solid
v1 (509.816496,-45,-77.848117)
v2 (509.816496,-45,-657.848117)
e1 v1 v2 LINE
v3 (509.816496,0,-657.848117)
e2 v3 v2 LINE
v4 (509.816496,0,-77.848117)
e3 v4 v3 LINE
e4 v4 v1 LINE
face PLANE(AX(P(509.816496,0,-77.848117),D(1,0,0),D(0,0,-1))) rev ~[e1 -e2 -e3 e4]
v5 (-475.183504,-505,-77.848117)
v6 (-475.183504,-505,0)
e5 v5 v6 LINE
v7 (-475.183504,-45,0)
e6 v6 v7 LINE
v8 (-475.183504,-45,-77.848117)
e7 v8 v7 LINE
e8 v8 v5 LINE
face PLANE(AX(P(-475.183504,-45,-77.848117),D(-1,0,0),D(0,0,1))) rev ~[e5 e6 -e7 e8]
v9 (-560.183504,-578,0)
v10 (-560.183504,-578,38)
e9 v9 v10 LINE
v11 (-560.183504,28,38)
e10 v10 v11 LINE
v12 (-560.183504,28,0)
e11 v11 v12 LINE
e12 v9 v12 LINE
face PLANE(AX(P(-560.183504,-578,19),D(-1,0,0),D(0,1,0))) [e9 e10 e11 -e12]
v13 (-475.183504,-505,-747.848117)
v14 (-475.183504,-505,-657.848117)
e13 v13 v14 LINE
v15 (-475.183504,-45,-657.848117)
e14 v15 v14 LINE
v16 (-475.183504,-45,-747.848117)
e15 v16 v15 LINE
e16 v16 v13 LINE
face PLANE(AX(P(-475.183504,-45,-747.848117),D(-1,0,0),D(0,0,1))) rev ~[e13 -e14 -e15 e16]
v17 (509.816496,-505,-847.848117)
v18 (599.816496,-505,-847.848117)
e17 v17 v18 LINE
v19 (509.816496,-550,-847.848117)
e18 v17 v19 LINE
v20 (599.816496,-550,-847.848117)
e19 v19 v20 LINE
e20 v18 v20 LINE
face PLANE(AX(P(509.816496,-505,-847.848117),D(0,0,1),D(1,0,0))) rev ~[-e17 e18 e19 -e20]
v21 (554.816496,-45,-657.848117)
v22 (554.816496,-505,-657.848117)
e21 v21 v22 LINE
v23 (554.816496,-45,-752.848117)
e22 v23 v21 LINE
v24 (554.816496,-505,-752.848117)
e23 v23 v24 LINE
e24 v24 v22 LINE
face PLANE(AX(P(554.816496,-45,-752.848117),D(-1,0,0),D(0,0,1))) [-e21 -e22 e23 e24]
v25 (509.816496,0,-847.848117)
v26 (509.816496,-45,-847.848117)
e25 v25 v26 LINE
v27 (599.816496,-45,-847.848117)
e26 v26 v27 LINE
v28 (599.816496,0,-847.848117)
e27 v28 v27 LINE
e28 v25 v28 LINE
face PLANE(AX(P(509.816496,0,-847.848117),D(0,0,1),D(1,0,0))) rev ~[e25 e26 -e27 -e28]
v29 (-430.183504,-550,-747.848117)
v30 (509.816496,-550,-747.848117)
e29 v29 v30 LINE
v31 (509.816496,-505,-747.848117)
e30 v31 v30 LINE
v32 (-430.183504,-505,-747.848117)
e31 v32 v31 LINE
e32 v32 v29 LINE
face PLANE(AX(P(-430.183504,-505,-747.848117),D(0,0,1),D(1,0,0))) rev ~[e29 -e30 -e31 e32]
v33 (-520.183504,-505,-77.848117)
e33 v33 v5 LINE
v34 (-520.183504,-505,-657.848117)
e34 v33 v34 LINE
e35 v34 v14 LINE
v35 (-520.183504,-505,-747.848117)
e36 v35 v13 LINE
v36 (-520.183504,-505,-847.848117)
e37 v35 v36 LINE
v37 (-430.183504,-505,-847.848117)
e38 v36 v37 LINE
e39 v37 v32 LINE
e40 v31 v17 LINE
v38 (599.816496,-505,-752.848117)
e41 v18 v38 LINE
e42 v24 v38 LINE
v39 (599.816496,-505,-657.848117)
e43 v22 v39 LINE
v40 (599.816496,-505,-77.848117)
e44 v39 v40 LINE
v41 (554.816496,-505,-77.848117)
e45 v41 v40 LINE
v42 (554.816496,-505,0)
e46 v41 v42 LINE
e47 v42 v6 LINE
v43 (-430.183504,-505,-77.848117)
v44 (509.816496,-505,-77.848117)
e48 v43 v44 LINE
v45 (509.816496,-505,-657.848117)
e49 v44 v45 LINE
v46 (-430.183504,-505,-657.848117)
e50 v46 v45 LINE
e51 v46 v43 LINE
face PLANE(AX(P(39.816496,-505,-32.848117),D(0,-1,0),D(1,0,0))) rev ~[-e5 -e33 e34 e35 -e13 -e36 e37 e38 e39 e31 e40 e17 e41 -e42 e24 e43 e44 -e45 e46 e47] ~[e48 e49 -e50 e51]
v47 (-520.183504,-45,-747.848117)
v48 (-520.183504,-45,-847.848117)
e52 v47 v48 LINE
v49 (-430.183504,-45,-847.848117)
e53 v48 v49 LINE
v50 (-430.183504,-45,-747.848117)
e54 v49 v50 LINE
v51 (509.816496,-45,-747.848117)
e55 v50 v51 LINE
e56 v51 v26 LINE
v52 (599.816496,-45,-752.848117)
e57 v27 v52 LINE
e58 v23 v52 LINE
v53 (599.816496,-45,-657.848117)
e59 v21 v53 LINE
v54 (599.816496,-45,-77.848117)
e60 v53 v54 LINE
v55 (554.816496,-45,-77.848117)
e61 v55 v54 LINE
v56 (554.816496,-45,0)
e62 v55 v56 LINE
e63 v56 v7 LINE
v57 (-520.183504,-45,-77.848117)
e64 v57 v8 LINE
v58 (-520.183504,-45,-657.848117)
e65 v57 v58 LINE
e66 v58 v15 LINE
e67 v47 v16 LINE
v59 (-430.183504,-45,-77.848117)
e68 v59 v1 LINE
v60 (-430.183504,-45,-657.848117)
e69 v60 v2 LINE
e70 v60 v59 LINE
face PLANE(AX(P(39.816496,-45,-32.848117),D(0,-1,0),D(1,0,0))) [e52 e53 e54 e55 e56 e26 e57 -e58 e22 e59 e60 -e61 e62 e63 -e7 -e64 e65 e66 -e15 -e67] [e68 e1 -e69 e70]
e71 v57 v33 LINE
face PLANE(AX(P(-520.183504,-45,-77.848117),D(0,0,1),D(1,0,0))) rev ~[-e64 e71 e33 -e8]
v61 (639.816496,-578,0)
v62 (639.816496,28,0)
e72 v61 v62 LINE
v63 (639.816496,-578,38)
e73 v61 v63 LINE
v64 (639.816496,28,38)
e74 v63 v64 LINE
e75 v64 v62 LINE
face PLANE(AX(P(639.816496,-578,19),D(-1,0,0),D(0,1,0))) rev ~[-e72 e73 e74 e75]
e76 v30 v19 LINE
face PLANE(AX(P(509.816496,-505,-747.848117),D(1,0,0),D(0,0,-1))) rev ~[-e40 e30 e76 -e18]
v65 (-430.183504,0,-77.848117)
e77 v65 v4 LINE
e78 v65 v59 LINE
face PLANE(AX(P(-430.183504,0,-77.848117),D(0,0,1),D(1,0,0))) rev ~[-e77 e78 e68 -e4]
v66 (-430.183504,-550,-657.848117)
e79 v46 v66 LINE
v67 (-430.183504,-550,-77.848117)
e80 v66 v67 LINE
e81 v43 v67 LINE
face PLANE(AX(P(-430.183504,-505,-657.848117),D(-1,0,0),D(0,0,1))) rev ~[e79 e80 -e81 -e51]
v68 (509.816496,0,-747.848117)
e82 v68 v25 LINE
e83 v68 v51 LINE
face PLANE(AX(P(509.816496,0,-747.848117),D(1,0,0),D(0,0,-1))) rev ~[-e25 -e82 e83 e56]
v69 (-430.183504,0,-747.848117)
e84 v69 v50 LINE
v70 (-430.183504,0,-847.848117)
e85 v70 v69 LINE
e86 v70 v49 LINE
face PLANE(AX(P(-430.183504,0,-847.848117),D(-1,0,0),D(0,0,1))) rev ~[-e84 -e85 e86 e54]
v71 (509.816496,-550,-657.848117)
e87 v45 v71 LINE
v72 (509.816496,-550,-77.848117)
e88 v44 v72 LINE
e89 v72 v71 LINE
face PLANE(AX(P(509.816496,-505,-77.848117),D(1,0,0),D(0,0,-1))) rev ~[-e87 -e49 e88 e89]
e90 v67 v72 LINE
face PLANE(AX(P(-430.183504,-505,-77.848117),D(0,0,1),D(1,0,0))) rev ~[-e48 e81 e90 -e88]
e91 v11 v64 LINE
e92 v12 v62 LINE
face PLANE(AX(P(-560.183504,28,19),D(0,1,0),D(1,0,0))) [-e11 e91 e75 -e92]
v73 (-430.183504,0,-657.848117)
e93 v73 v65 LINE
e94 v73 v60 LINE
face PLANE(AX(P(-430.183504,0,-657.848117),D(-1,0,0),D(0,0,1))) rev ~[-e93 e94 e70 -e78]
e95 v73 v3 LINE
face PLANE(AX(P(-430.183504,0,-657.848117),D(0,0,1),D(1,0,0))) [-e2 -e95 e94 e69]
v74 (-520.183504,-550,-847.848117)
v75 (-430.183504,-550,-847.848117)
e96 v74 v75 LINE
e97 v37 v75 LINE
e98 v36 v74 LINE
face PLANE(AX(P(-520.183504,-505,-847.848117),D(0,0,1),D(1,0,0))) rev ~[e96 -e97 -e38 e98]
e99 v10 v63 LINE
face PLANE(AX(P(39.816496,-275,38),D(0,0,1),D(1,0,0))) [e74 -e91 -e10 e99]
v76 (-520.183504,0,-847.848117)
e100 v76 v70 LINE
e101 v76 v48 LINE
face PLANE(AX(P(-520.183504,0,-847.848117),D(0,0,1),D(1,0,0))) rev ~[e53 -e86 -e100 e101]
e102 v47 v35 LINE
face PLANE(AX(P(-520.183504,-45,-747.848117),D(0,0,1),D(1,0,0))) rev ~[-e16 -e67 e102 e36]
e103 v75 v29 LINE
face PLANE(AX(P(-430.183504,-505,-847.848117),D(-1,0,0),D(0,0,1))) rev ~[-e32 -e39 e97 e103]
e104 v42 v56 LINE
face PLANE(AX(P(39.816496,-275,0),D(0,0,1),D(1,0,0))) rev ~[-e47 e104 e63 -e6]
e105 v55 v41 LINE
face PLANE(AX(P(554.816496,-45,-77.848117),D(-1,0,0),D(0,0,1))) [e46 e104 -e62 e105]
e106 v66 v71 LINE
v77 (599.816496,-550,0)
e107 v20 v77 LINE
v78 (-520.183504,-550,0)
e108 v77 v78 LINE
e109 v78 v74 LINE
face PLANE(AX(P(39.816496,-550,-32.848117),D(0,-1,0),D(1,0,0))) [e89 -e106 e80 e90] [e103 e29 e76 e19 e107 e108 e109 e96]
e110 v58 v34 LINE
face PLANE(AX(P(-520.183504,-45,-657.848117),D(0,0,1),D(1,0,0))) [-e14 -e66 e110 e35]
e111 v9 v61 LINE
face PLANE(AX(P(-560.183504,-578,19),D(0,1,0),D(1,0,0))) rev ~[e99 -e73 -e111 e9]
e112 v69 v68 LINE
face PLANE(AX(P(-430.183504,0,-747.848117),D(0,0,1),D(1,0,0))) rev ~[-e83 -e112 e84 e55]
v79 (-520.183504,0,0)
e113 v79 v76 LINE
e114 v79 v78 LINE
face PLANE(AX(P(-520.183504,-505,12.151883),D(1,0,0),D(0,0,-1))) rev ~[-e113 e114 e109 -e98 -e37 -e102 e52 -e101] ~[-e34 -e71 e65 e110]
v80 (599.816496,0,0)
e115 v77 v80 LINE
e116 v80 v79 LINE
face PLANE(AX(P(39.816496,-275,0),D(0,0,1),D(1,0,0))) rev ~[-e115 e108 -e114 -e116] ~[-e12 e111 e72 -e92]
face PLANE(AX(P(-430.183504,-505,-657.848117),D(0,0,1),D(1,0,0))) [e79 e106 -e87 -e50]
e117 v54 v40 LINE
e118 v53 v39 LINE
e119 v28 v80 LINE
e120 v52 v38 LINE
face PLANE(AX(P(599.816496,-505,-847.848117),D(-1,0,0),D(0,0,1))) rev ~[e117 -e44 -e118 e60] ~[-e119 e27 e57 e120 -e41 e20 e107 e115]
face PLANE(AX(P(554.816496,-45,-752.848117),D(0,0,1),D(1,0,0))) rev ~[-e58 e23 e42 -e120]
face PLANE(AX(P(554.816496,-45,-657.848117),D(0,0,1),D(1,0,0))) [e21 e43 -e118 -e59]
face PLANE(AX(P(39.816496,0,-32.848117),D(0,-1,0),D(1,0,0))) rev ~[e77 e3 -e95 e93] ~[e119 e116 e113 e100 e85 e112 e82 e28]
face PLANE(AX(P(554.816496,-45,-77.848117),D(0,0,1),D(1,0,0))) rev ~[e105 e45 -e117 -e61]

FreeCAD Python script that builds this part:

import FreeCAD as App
import Part
import Sketcher
from FreeCAD import Vector
Q = App.Units.Quantity


def add_polygon(sketch, points):
    """Adds a closed chain of lines whose ends are joined by coincident constraints."""
    first, n = sketch.GeometryCount, len(points)
    for a, b in zip(points, points[1:] + points[:1]):
        sketch.addGeometry(Part.LineSegment(App.Vector(*a, 0), App.Vector(*b, 0)), False)
    for i in range(n):
        sketch.addConstraint(Sketcher.Constraint("Coincident", first + i, 2, first + (i + 1) % n, 1))

doc = App.newDocument("Part")
params = doc.addObject("Spreadsheet::Sheet", "Params")
for row, (alias, value) in enumerate([
    ("sketch1_width", "90 mm"),
    ("sketch1_width2", "1120 mm"),
    ("sketch1_height", "100 mm"),
    ("sketch1_height2", "860 mm"),
    ("sketch1_height3", "580 mm"),
    ("pad1_length", "45 mm"),
    ("sketch2_width", "45 mm"),
    ("sketch2_height", "90 mm"),
    ("sketch2_height2", "95 mm"),
    ("pad2_length", "460 mm"),
    ("sketch3_width", "90 mm"),
    ("sketch3_width2", "1120 mm"),
    ("sketch3_height", "100 mm"),
    ("sketch3_height2", "860 mm"),
    ("sketch3_height3", "580 mm"),
    ("pad3_length", "45 mm"),
    ("sketch4_width", "1200 mm"),
    ("sketch4_height", "606 mm"),
    ("pad4_length", "19 mm"),
    ("sketch5_width", "1200 mm"),
    ("sketch5_height", "606 mm"),
    ("pad5_length", "19 mm"),
], start=1):
    params.set(f"A{row}", alias)
    params.set(f"B{row}", "=" + value)
    params.setAlias(f"B{row}", alias)

body = doc.addObject("PartDesign::Body", "Body")

# Sketch on XZ plane
sketch1 = body.newObject("Sketcher::SketchObject", "Sketch")
sketch1.AttachmentSupport = (doc.getObject("XZ_Plane"), [""])
sketch1.MapMode = "FlatFace"
add_polygon(sketch1, [(510, -748), (510, -848), (600, -848), (600, 12), (-520, 12), (-520, -848), (-430, -848), (-430, -748)])  # lines 0-7
add_polygon(sketch1, [(-430, -78), (510, -78), (510, -658), (-430, -658)])  # lines 8-11
sketch1.addConstraint([
    Sketcher.Constraint("Vertical", 0),
    Sketcher.Constraint("Horizontal", 1),
    Sketcher.Constraint("Vertical", 2),
    Sketcher.Constraint("Horizontal", 3),
    Sketcher.Constraint("Vertical", 4),
    Sketcher.Constraint("Horizontal", 5),
    Sketcher.Constraint("Vertical", 6),
    Sketcher.Constraint("Horizontal", 7),
    Sketcher.Constraint("Horizontal", 8),
    Sketcher.Constraint("Vertical", 9),
    Sketcher.Constraint("Horizontal", 10),
    Sketcher.Constraint("Vertical", 11),
    Sketcher.Constraint("Horizontal", 1, 2, 4, 2),
    Sketcher.Constraint("Vertical", 7, 2, 8, 2),
    Sketcher.Constraint("Vertical", 6, 2, 10, 2),
    Sketcher.Constraint("Equal", 1, 5),
    Sketcher.Constraint("DistanceX", 1, 1, 1, 2, Q("90 mm")),
    Sketcher.Constraint("DistanceX", 3, 2, 3, 1, Q("1120 mm")),
    Sketcher.Constraint("DistanceY", 0, 2, 0, 1, Q("100 mm")),
    Sketcher.Constraint("DistanceY", 2, 1, 2, 2, Q("860 mm")),
    Sketcher.Constraint("DistanceY", 9, 2, 9, 1, Q("580 mm")),
    Sketcher.Constraint("DistanceY", 8, 2, 2, 2, Q("90 mm")),
    Sketcher.Constraint("DistanceX", -1, 1, 0, 2, Q("509.816496 mm")),
    Sketcher.Constraint("DistanceY", 0, 2, -1, 1, Q("847.848117 mm")),
])
sketch1.setExpression("Constraints[28]", "Params.sketch1_width")
sketch1.setExpression("Constraints[29]", "Params.sketch1_width2")
sketch1.setExpression("Constraints[30]", "Params.sketch1_height")
sketch1.setExpression("Constraints[31]", "Params.sketch1_height2")
sketch1.setExpression("Constraints[32]", "Params.sketch1_height3")
pad1 = body.newObject("PartDesign::Pad", "Pad")
pad1.Profile = sketch1
pad1.setExpression("Length", "Params.pad1_length")

# Sketch on XZ plane
sketch2 = body.newObject("Sketcher::SketchObject", "Sketch001")
sketch2.AttachmentSupport = (doc.getObject("XZ_Plane"), [""])
sketch2.MapMode = "FlatFace"
sketch2.AttachmentOffset = App.Placement(Vector(0, 0, 45), App.Rotation())
add_polygon(sketch2, [(-520, 12), (-520, -78), (-475, -78), (-475, 12)])  # lines 0-3
add_polygon(sketch2, [(555, 12), (555, -78), (600, -78), (600, 12)])  # lines 4-7
add_polygon(sketch2, [(555, -658), (555, -753), (600, -753), (600, -658)])  # lines 8-11
add_polygon(sketch2, [(-520, -658), (-520, -748), (-475, -748), (-475, -658)])  # lines 12-15
sketch2.addConstraint([
    Sketcher.Constraint("Vertical", 0),
    Sketcher.Constraint("Horizontal", 1),
    Sketcher.Constraint("Vertical", 2),
    Sketcher.Constraint("Horizontal", 3),
    Sketcher.Constraint("Vertical", 4),
    Sketcher.Constraint("Horizontal", 5),
    Sketcher.Constraint("Vertical", 6),
    Sketcher.Constraint("Horizontal", 7),
    Sketcher.Constraint("Vertical", 8),
    Sketcher.Constraint("Horizontal", 9),
    Sketcher.Constraint("Vertical", 10),
    Sketcher.Constraint("Horizontal", 11),
    Sketcher.Constraint("Vertical", 12),
    Sketcher.Constraint("Horizontal", 13),
    Sketcher.Constraint("Vertical", 14),
    Sketcher.Constraint("Horizontal", 15),
    Sketcher.Constraint("Horizontal", 1, 2, 4, 2),
    Sketcher.Constraint("Horizontal", 3, 2, 6, 2),
    Sketcher.Constraint("Horizontal", 11, 2, 14, 2),
    Sketcher.Constraint("Vertical", 7, 2, 8, 2),
    Sketcher.Constraint("Vertical", 6, 2, 9, 2),
    Sketcher.Constraint("Vertical", 3, 2, 12, 2),
    Sketcher.Constraint("Vertical", 2, 2, 13, 2),
    Sketcher.Constraint("Equal", 3, 5),
    Sketcher.Constraint("Equal", 6, 12),
    Sketcher.Constraint("DistanceX", 1, 1, 1, 2, Q("45 mm")),
    Sketcher.Constraint("DistanceY", 0, 2, 0, 1, Q("90 mm")),
    Sketcher.Constraint("DistanceY", 8, 2, 8, 1, Q("95 mm")),
    Sketcher.Constraint("DistanceX", 1, 2, 4, 2, Q("1030 mm")),
    Sketcher.Constraint("DistanceY", 8, 2, 4, 2, Q("675 mm")),
    Sketcher.Constraint("DistanceX", 0, 2, -1, 1, Q("520.183504 mm")),
    Sketcher.Constraint("DistanceY", 0, 2, -1, 1, Q("77.848117 mm")),
])
sketch2.setExpression("Constraints[41]", "Params.sketch2_width")
sketch2.setExpression("Constraints[42]", "Params.sketch2_height")
sketch2.setExpression("Constraints[43]", "Params.sketch2_height2")
pad2 = body.newObject("PartDesign::Pad", "Pad001")
pad2.Profile = sketch2
pad2.setExpression("Length", "Params.pad2_length")

# Sketch on XZ plane
sketch3 = body.newObject("Sketcher::SketchObject", "Sketch002")
sketch3.AttachmentSupport = (doc.getObject("XZ_Plane"), [""])
sketch3.MapMode = "FlatFace"
sketch3.AttachmentOffset = App.Placement(Vector(0, 0, 505), App.Rotation())
add_polygon(sketch3, [(510, -748), (510, -848), (600, -848), (600, 12), (-520, 12), (-520, -848), (-430, -848), (-430, -748)])  # lines 0-7
add_polygon(sketch3, [(-430, -78), (510, -78), (510, -658), (-430, -658)])  # lines 8-11
sketch3.addConstraint([
    Sketcher.Constraint("Vertical", 0),
    Sketcher.Constraint("Horizontal", 1),
    Sketcher.Constraint("Vertical", 2),
    Sketcher.Constraint("Horizontal", 3),
    Sketcher.Constraint("Vertical", 4),
    Sketcher.Constraint("Horizontal", 5),
    Sketcher.Constraint("Vertical", 6),
    Sketcher.Constraint("Horizontal", 7),
    Sketcher.Constraint("Horizontal", 8),
    Sketcher.Constraint("Vertical", 9),
    Sketcher.Constraint("Horizontal", 10),
    Sketcher.Constraint("Vertical", 11),
    Sketcher.Constraint("Horizontal", 1, 2, 4, 2),
    Sketcher.Constraint("Vertical", 7, 2, 8, 2),
    Sketcher.Constraint("Vertical", 6, 2, 10, 2),
    Sketcher.Constraint("Equal", 1, 5),
    Sketcher.Constraint("DistanceX", 1, 1, 1, 2, Q("90 mm")),
    Sketcher.Constraint("DistanceX", 3, 2, 3, 1, Q("1120 mm")),
    Sketcher.Constraint("DistanceY", 0, 2, 0, 1, Q("100 mm")),
    Sketcher.Constraint("DistanceY", 2, 1, 2, 2, Q("860 mm")),
    Sketcher.Constraint("DistanceY", 9, 2, 9, 1, Q("580 mm")),
    Sketcher.Constraint("DistanceY", 8, 2, 2, 2, Q("90 mm")),
    Sketcher.Constraint("DistanceX", -1, 1, 0, 2, Q("509.816496 mm")),
    Sketcher.Constraint("DistanceY", 0, 2, -1, 1, Q("847.848117 mm")),
])
sketch3.setExpression("Constraints[28]", "Params.sketch3_width")
sketch3.setExpression("Constraints[29]", "Params.sketch3_width2")
sketch3.setExpression("Constraints[30]", "Params.sketch3_height")
sketch3.setExpression("Constraints[31]", "Params.sketch3_height2")
sketch3.setExpression("Constraints[32]", "Params.sketch3_height3")
pad3 = body.newObject("PartDesign::Pad", "Pad002")
pad3.Profile = sketch3
pad3.setExpression("Length", "Params.pad3_length")

# Sketch on XY plane
sketch4 = body.newObject("Sketcher::SketchObject", "Sketch003")
sketch4.AttachmentSupport = (doc.getObject("XY_Plane"), [""])
sketch4.MapMode = "FlatFace"
add_polygon(sketch4, [(-560, 28), (-560, -578), (640, -578), (640, 28)])  # lines 0-3
sketch4.addConstraint([
    Sketcher.Constraint("Vertical", 0),
    Sketcher.Constraint("Horizontal", 1),
    Sketcher.Constraint("Vertical", 2),
    Sketcher.Constraint("Horizontal", 3),
    Sketcher.Constraint("DistanceX", 1, 1, 1, 2, Q("1200 mm")),
    Sketcher.Constraint("DistanceY", 0, 2, 0, 1, Q("606 mm")),
    Sketcher.Constraint("DistanceY", 0, 2, -1, 1, Q("578 mm")),
    Sketcher.Constraint("DistanceX", 0, 2, -1, 1, Q("560.183504 mm")),
])
sketch4.setExpression("Constraints[8]", "Params.sketch4_width")
sketch4.setExpression("Constraints[9]", "Params.sketch4_height")
pad4 = body.newObject("PartDesign::Pad", "Pad003")
pad4.Profile = sketch4
pad4.setExpression("Length", "Params.pad4_length")

# Sketch on XY plane
sketch5 = body.newObject("Sketcher::SketchObject", "Sketch004")
sketch5.AttachmentSupport = (doc.getObject("XY_Plane"), [""])
sketch5.MapMode = "FlatFace"
sketch5.AttachmentOffset = App.Placement(Vector(0, 0, 19), App.Rotation())
add_polygon(sketch5, [(-560, 28), (-560, -578), (640, -578), (640, 28)])  # lines 0-3
sketch5.addConstraint([
    Sketcher.Constraint("Vertical", 0),
    Sketcher.Constraint("Horizontal", 1),
    Sketcher.Constraint("Vertical", 2),
    Sketcher.Constraint("Horizontal", 3),
    Sketcher.Constraint("DistanceX", 1, 1, 1, 2, Q("1200 mm")),
    Sketcher.Constraint("DistanceY", 0, 2, 0, 1, Q("606 mm")),
    Sketcher.Constraint("DistanceY", 0, 2, -1, 1, Q("578 mm")),
    Sketcher.Constraint("DistanceX", 0, 2, -1, 1, Q("560.183504 mm")),
])
sketch5.setExpression("Constraints[8]", "Params.sketch5_width")
sketch5.setExpression("Constraints[9]", "Params.sketch5_height")
pad5 = body.newObject("PartDesign::Pad", "Pad004")
pad5.Profile = sketch5
pad5.setExpression("Length", "Params.pad5_length")

doc.recompute()
